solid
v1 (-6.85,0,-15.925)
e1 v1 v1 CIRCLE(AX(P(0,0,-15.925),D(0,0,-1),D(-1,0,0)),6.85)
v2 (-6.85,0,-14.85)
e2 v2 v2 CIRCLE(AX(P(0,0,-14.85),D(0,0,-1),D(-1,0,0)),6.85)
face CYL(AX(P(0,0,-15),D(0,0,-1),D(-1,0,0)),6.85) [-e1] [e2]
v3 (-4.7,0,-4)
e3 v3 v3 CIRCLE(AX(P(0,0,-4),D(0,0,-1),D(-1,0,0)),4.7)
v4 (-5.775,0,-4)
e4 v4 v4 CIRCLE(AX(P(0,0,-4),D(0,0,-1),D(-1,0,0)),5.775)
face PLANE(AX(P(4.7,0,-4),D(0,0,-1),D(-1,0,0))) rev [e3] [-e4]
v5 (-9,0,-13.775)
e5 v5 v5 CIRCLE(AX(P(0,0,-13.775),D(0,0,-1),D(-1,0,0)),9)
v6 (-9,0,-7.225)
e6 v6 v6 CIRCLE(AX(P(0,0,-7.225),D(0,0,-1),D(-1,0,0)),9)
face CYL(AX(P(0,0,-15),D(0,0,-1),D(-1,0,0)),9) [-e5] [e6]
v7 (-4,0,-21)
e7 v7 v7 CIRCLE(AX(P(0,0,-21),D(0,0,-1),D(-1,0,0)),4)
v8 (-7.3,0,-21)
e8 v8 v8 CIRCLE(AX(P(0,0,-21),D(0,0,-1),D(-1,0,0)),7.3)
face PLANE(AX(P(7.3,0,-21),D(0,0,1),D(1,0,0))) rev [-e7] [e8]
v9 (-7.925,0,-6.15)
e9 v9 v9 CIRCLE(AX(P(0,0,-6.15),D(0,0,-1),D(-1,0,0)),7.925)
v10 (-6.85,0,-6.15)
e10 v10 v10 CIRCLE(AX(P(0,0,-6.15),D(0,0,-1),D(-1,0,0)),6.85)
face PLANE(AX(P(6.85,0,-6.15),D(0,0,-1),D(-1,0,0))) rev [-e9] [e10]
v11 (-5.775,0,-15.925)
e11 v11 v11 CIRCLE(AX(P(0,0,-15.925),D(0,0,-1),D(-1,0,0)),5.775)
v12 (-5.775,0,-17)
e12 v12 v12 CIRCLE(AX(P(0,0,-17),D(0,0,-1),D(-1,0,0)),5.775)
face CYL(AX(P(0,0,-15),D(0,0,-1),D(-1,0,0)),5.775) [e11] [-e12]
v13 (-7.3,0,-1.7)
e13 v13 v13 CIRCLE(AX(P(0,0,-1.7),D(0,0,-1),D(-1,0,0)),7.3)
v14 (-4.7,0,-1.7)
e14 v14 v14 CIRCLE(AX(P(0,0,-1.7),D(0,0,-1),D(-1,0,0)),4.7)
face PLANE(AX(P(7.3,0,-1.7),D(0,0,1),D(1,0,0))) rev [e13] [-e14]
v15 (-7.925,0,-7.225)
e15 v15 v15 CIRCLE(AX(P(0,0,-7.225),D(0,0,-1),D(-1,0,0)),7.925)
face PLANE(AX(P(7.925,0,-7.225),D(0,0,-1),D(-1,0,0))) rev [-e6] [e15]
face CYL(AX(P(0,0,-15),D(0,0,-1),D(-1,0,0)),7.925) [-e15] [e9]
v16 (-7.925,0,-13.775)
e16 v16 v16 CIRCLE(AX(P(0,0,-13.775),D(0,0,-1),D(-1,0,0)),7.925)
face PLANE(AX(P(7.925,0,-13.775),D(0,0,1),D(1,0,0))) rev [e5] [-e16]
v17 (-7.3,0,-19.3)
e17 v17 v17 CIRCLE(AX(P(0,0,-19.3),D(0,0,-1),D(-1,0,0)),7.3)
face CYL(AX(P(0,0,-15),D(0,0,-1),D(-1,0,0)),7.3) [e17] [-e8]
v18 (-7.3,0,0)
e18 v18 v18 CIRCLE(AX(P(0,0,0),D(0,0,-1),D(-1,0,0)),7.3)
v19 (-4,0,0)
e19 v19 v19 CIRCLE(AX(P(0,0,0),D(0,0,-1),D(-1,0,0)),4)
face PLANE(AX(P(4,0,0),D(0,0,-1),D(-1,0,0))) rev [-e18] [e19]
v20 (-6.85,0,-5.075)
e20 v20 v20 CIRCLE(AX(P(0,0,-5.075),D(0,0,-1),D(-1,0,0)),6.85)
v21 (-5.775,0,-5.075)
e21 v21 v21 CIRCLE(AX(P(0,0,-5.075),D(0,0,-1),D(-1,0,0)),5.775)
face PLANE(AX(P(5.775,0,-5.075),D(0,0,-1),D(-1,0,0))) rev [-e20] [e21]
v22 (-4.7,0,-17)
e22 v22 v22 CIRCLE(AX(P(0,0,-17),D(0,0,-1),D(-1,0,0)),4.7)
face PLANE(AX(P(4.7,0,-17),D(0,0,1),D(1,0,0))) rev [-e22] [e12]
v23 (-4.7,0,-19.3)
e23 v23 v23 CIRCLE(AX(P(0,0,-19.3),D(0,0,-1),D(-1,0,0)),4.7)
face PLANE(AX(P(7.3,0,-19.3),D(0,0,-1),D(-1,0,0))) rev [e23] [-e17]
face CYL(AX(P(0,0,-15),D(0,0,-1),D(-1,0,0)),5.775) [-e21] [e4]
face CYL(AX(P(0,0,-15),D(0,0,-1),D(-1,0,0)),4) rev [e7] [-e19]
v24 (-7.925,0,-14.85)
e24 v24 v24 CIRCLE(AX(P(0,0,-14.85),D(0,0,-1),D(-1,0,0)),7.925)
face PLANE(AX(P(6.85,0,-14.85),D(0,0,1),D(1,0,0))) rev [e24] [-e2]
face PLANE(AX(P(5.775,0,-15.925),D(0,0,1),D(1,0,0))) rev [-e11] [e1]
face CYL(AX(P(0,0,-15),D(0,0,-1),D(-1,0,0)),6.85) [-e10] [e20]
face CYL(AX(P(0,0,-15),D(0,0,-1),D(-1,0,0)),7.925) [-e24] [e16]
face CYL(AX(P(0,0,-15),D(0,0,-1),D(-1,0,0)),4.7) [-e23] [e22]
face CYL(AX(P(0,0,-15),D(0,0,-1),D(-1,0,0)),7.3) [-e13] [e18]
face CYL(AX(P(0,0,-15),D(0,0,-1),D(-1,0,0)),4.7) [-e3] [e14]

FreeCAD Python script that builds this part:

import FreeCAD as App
import Part
import Sketcher

V = App.Vector

doc = App.newDocument("Part")
params = doc.addObject("Spreadsheet::Sheet", "Params")
for row, (alias, value) in enumerate([
    ("sketch1_height", "21 mm"),
    ("sketch1_width", "3.3 mm"),
    ("sketch1_width2", "2.6 mm"),
    ("sketch1_height2", "1.7 mm"),
    ("sketch1_height3", "2.3 mm"),
    ("revolution_angle", "360 deg"),
], start=1):
    params.set(f"A{row}", alias)
    params.set(f"B{row}", "=" + value)
    params.setAlias(f"B{row}", alias)

body = doc.addObject("PartDesign::Body", "Body")

sketch1 = body.newObject("Sketcher::SketchObject", "Sketch")
sketch1.AttachmentSupport = (doc.getObject("XZ_Plane"), [""])
sketch1.MapMode = "FlatFace"
sketch1.addGeometry([
    Part.LineSegment(V(4, 0, 0), V(7.3, 0, 0)),
    Part.LineSegment(V(7.3, 0, 0), V(7.3, -1.7, 0)),
    Part.LineSegment(V(7.3, -1.7, 0), V(4.7, -1.7, 0)),
    Part.LineSegment(V(4.7, -1.7, 0), V(4.7, -4, 0)),
    Part.LineSegment(V(4.7, -4, 0), V(5.8, -4, 0)),
    Part.LineSegment(V(5.8, -4, 0), V(5.8, -5.1, 0)),
    Part.LineSegment(V(5.8, -5.1, 0), V(6.8, -5.1, 0)),
    Part.LineSegment(V(6.8, -5.1, 0), V(6.8, -6.2, 0)),
    Part.LineSegment(V(6.8, -6.2, 0), V(7.9, -6.2, 0)),
    Part.LineSegment(V(7.9, -6.2, 0), V(7.9, -7.2, 0)),
    Part.LineSegment(V(7.9, -7.2, 0), V(9, -7.2, 0)),
    Part.LineSegment(V(9, -7.2, 0), V(9, -13.8, 0)),
    Part.LineSegment(V(9, -13.8, 0), V(7.9, -13.8, 0)),
    Part.LineSegment(V(7.9, -13.8, 0), V(7.9, -14.8, 0)),
    Part.LineSegment(V(7.9, -14.8, 0), V(6.8, -14.8, 0)),
    Part.LineSegment(V(6.8, -14.8, 0), V(6.8, -15.9, 0)),
    Part.LineSegment(V(6.8, -15.9, 0), V(5.8, -15.9, 0)),
    Part.LineSegment(V(5.8, -15.9, 0), V(5.8, -17, 0)),
    Part.LineSegment(V(5.8, -17, 0), V(4.7, -17, 0)),
    Part.LineSegment(V(4.7, -17, 0), V(4.7, -19.3, 0)),
    Part.LineSegment(V(4.7, -19.3, 0), V(7.3, -19.3, 0)),
    Part.LineSegment(V(7.3, -19.3, 0), V(7.3, -21, 0)),
    Part.LineSegment(V(7.3, -21, 0), V(4, -21, 0)),
    Part.LineSegment(V(4, -21, 0), V(4, 0, 0)),
], False)
sketch1.addConstraint([
    Sketcher.Constraint("Coincident", 0, 2, 1, 1),
    Sketcher.Constraint("Coincident", 1, 2, 2, 1),
    Sketcher.Constraint("Coincident", 2, 2, 3, 1),
    Sketcher.Constraint("Coincident", 3, 2, 4, 1),
    Sketcher.Constraint("Coincident", 4, 2, 5, 1),
    Sketcher.Constraint("Coincident", 5, 2, 6, 1),
    Sketcher.Constraint("Coincident", 6, 2, 7, 1),
    Sketcher.Constraint("Coincident", 7, 2, 8, 1),
    Sketcher.Constraint("Coincident", 8, 2, 9, 1),
    Sketcher.Constraint("Coincident", 9, 2, 10, 1),
    Sketcher.Constraint("Coincident", 10, 2, 11, 1),
    Sketcher.Constraint("Coincident", 11, 2, 12, 1),
    Sketcher.Constraint("Coincident", 12, 2, 13, 1),
    Sketcher.Constraint("Coincident", 13, 2, 14, 1),
    Sketcher.Constraint("Coincident", 14, 2, 15, 1),
    Sketcher.Constraint("Coincident", 15, 2, 16, 1),
    Sketcher.Constraint("Coincident", 16, 2, 17, 1),
    Sketcher.Constraint("Coincident", 17, 2, 18, 1),
    Sketcher.Constraint("Coincident", 18, 2, 19, 1),
    Sketcher.Constraint("Coincident", 19, 2, 20, 1),
    Sketcher.Constraint("Coincident", 20, 2, 21, 1),
    Sketcher.Constraint("Coincident", 21, 2, 22, 1),
    Sketcher.Constraint("Coincident", 22, 2, 23, 1),
    Sketcher.Constraint("Coincident", 23, 2, 0, 1),
    Sketcher.Constraint("Horizontal", 0),
    Sketcher.Constraint("Vertical", 1),
    Sketcher.Constraint("Horizontal", 2),
    Sketcher.Constraint("Vertical", 3),
    Sketcher.Constraint("Horizontal", 4),
    Sketcher.Constraint("Vertical", 5),
    Sketcher.Constraint("Horizontal", 6),
    Sketcher.Constraint("Vertical", 7),
    Sketcher.Constraint("Horizontal", 8),
    Sketcher.Constraint("Vertical", 9),
    Sketcher.Constraint("Horizontal", 10),
    Sketcher.Constraint("Vertical", 11),
    Sketcher.Constraint("Horizontal", 12),
    Sketcher.Constraint("Vertical", 13),
    Sketcher.Constraint("Horizontal", 14),
    Sketcher.Constraint("Vertical", 15),
    Sketcher.Constraint("Horizontal", 16),
    Sketcher.Constraint("Vertical", 17),
    Sketcher.Constraint("Horizontal", 18),
    Sketcher.Constraint("Vertical", 19),
    Sketcher.Constraint("Horizontal", 20),
    Sketcher.Constraint("Vertical", 21),
    Sketcher.Constraint("Horizontal", 22),
    Sketcher.Constraint("Vertical", 23),
    Sketcher.Constraint("PointOnObject", 0, 2, -1),
    Sketcher.Constraint("Vertical", 9, 2, 12, 2),
    Sketcher.Constraint("Vertical", 7, 2, 14, 2),
    Sketcher.Constraint("Vertical", 5, 2, 16, 2),
    Sketcher.Constraint("Vertical", 3, 2, 18, 2),
    Sketcher.Constraint("Vertical", 1, 2, 20, 2),
    Sketcher.Constraint("Equal", 4, 6),
    Sketcher.Constraint("Equal", 6, 8),
    Sketcher.Constraint("Equal", 8, 10),
    Sketcher.Constraint("Equal", 18, 5),
    Sketcher.Constraint("Equal", 5, 7),
    Sketcher.Constraint("Equal", 7, 9),
    Sketcher.Constraint("Equal", 9, 13),
    Sketcher.Constraint("Equal", 13, 15),
    Sketcher.Constraint("Equal", 15, 17),
    Sketcher.Constraint("Equal", 3, 19),
    Sketcher.Constraint("Equal", 1, 21),
    Sketcher.Constraint("DistanceY", 23, 1, 23, 2, 21.0),
    Sketcher.Constraint("DistanceX", 0, 1, 0, 2, 3.3),
    Sketcher.Constraint("DistanceX", 2, 2, 2, 1, 2.6),
    Sketcher.Constraint("DistanceY", 1, 2, 1, 1, 1.7),
    Sketcher.Constraint("DistanceY", 3, 2, 3, 1, 2.3),
    Sketcher.Constraint("DistanceX", -1, 1, 10, 2, 9.0),
    Sketcher.Constraint("DistanceX", -1, 1, 22, 2, 4.0),
])
sketch1.setExpression("Constraints[65]", "Params.sketch1_height")
sketch1.setExpression("Constraints[66]", "Params.sketch1_width")
sketch1.setExpression("Constraints[67]", "Params.sketch1_width2")
sketch1.setExpression("Constraints[68]", "Params.sketch1_height2")
sketch1.setExpression("Constraints[69]", "Params.sketch1_height3")
revolution = body.newObject("PartDesign::Revolution", "Revolution")
revolution.Profile = sketch1
revolution.ReferenceAxis = (sketch1, ["V_Axis"])
revolution.setExpression("Angle", "Params.revolution_angle")

doc.recompute()
